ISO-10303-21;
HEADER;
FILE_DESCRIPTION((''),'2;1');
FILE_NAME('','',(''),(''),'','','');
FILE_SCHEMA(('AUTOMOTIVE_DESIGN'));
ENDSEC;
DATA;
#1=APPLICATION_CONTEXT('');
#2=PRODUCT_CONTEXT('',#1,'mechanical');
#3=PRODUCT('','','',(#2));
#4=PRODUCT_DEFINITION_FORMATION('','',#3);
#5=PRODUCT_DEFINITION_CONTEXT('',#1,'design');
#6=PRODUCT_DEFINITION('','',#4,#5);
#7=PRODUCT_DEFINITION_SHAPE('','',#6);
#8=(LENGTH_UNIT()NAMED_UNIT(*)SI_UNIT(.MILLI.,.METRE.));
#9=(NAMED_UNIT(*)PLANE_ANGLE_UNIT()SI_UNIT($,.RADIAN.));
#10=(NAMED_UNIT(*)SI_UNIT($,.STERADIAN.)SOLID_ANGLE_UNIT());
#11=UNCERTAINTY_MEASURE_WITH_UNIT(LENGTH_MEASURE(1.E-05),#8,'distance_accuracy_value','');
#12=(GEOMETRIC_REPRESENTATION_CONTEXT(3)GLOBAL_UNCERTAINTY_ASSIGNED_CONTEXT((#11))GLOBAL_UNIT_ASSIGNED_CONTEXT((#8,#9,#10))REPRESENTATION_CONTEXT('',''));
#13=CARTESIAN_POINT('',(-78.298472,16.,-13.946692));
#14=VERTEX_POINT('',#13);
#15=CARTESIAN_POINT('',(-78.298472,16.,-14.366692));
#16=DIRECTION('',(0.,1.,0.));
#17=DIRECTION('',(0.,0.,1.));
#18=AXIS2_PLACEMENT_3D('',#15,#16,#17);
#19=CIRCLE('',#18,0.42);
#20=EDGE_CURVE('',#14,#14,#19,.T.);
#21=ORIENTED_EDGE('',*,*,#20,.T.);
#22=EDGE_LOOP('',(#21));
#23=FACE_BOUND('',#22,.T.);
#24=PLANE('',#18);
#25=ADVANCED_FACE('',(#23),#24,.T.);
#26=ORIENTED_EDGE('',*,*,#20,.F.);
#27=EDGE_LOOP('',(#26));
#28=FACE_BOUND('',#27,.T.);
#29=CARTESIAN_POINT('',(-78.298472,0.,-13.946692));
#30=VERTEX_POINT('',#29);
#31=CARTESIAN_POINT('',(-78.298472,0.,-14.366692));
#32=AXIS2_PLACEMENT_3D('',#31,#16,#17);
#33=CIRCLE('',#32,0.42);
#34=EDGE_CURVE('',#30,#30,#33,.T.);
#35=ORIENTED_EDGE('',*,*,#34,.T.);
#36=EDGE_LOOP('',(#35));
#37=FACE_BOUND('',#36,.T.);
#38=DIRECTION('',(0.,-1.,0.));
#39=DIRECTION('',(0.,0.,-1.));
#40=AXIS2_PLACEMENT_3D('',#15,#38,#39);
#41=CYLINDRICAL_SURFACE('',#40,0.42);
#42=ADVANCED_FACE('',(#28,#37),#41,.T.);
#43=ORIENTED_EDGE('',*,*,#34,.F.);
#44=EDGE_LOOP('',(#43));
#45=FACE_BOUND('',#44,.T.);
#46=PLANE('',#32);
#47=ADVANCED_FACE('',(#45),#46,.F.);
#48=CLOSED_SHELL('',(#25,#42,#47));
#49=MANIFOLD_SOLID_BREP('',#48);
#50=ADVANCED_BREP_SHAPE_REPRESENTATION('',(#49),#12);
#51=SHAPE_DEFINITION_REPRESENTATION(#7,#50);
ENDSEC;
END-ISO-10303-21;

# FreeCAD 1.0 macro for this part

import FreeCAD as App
import Part
import Sketcher

V = App.Vector
Q = App.Units.Quantity

doc = App.newDocument("Part")
body = doc.addObject("PartDesign::Body", "Body")

sketch1 = body.newObject("Sketcher::SketchObject", "Sketch")
sketch1.AttachmentSupport = (doc.getObject("XZ_Plane"), [""])
sketch1.MapMode = "FlatFace"
sketch1.addGeometry(Part.Circle(V(-78.3, -14.37, 0), V(0, 0, 1), 0.42), False)
sketch1.addConstraint(Sketcher.Constraint("Diameter", 0, Q("0.84 mm")))
sketch1.addConstraint(Sketcher.Constraint("DistanceX", 0, 3, -1, 1, Q("78.298472 mm")))
sketch1.addConstraint(Sketcher.Constraint("DistanceY", 0, 3, -1, 1, Q("14.366692 mm")))
pad1 = body.newObject("PartDesign::Pad", "Pad")
pad1.Profile = sketch1
pad1.Length = 16
pad1.Reversed = True

doc.recompute()
